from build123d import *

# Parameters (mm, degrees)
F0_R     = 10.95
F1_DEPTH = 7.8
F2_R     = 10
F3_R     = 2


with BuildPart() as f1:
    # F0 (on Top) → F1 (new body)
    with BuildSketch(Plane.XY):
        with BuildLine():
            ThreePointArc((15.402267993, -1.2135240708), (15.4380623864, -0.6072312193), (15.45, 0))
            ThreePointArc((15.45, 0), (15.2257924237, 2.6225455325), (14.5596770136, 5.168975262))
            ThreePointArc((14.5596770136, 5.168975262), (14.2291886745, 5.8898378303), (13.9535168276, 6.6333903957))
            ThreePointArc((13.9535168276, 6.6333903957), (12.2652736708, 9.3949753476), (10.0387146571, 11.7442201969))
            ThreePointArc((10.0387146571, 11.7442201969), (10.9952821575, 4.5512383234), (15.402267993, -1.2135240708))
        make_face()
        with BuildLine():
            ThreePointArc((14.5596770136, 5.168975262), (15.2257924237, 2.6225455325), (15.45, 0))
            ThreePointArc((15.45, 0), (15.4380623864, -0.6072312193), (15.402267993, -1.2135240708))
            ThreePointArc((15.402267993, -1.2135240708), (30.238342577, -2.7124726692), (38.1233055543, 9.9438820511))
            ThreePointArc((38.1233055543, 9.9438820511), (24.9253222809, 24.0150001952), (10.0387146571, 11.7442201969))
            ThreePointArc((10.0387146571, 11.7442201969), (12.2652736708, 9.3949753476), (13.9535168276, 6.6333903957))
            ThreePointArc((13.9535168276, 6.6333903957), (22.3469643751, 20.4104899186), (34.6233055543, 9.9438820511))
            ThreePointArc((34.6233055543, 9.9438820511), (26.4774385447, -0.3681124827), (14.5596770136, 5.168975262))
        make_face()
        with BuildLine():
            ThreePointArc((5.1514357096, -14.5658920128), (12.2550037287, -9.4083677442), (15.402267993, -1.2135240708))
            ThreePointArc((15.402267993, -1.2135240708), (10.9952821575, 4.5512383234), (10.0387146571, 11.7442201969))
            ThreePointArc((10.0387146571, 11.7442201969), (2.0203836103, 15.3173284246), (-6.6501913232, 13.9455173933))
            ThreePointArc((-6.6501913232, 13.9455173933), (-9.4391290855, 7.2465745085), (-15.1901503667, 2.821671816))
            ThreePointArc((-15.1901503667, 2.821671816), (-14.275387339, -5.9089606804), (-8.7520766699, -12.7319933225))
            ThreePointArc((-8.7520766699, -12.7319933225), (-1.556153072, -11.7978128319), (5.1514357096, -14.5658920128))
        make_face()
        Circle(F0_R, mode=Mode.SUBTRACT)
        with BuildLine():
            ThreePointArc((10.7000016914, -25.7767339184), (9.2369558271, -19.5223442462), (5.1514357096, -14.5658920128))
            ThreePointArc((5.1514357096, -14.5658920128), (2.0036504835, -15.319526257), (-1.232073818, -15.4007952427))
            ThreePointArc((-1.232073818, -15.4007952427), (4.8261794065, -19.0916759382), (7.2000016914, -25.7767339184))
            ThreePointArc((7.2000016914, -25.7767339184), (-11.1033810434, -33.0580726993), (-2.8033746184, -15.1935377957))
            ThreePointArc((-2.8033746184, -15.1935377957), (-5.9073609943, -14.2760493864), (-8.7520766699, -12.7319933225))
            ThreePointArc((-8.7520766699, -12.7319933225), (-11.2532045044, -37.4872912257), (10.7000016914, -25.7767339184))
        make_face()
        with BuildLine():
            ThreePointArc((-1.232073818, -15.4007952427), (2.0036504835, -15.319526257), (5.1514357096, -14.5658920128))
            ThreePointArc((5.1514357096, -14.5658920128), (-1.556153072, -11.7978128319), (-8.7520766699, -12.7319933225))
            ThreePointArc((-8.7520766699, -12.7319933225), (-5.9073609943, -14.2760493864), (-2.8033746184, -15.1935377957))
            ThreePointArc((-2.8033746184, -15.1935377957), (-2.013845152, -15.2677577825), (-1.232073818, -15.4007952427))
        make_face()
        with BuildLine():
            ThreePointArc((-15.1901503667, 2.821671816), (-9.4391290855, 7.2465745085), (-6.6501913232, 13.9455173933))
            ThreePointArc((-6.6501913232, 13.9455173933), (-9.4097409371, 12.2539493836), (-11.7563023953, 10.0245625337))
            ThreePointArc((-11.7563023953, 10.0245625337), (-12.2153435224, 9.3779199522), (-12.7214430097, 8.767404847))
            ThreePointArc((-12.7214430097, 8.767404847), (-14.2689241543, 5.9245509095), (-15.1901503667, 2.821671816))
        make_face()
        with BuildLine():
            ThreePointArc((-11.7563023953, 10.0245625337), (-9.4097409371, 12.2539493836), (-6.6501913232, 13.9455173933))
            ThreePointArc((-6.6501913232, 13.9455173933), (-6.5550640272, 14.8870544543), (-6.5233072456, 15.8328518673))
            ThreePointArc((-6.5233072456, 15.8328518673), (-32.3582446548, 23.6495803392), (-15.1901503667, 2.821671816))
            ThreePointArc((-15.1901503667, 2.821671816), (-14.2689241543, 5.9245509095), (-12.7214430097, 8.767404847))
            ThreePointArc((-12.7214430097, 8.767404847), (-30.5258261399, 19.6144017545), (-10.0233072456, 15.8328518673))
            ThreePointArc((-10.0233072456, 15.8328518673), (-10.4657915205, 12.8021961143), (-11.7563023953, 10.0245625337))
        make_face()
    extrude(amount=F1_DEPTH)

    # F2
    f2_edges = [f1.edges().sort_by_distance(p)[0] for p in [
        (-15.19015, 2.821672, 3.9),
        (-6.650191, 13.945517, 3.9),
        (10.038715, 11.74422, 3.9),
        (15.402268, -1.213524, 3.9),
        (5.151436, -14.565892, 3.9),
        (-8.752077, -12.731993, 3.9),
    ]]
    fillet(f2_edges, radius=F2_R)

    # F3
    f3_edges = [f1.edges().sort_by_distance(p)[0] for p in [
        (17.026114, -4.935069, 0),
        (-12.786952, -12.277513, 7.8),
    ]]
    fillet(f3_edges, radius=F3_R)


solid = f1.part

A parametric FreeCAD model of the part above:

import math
import FreeCAD as App
import Part
import Sketcher

V = App.Vector
Q = App.Units.Quantity


def edges_at(feature, points):
    """Names of the edges that pass closest to the given points."""
    edges = feature.Shape.Edges
    near = lambda p: min(range(len(edges)), key=lambda i: edges[i].distToShape(Part.Vertex(*p))[0])
    return sorted({f"Edge{near(p) + 1}" for p in points})

doc = App.newDocument("Part")
body = doc.addObject("PartDesign::Body", "Body")

# Sketch on XY plane
sketch1 = doc.addObject("Sketcher::SketchObject", "Sketch")
body.addObject(sketch1)
sketch1.AttachmentSupport = (doc.XY_Plane, [""])
sketch1.MapMode = "FlatFace"
sketch1.addGeometry([
    Part.ArcOfCircle(Part.Circle(V(24, 9.9, 0), V(0, 0, 1), 14.1), math.radians(-128), math.radians(0)),  # 0
    Part.ArcOfCircle(Part.Circle(V(24, 9.9, 0), V(0, 0, 1), 14.1), math.radians(0), math.radians(173)),  # 1
    Part.ArcOfCircle(Part.Circle(V(0, 0, 0), V(0, 0, 1), 15.4), math.radians(49), math.radians(115)),  # 2
    Part.ArcOfCircle(Part.Circle(V(-20.6, 15.8, 0), V(0, 0, 1), 14.1), math.radians(-7.69), math.radians(0)),  # 3
    Part.ArcOfCircle(Part.Circle(V(-20.6, 15.8, 0), V(0, 0, 1), 14.1), math.radians(0), math.radians(293)),  # 4
    Part.ArcOfCircle(Part.Circle(V(0, 0, 0), V(0, 0, 1), 15.4), math.radians(169), math.radians(235)),  # 5
    Part.ArcOfCircle(Part.Circle(V(-3.4, -25.8, 0), V(0, 0, 1), 14.1), math.radians(112), math.radians(360)),  # 6
    Part.ArcOfCircle(Part.Circle(V(-3.4, -25.8, 0), V(0, 0, 1), 14.1), math.radians(0), math.radians(53)),  # 7
    Part.ArcOfCircle(Part.Circle(V(0, 0, 0), V(0, 0, 1), 15.4), math.radians(-71), math.radians(-5)),  # 8
    Part.ArcOfCircle(Part.Circle(V(-20.6, 15.8, 0), V(0, 0, 1), 10.6), math.radians(-41.8), math.radians(-33.23)),  # 9
    Part.ArcOfCircle(Part.Circle(V(-20.6, 15.8, 0), V(0, 0, 1), 10.6), math.radians(0), math.radians(318)),  # 10
    Part.ArcOfCircle(Part.Circle(V(-20.6, 15.8, 0), V(0, 0, 1), 10.6), math.radians(-33), math.radians(0)),  # 11
    Part.Circle(V(0, 0, 0), V(0, 0, 1), 10.9),  # 12
    Part.ArcOfCircle(Part.Circle(V(24, 9.9, 0), V(0, 0, 1), 10.6), math.radians(-161.8), math.radians(-153.23)),  # 13
    Part.ArcOfCircle(Part.Circle(V(24, 9.9, 0), V(0, 0, 1), 10.6), math.radians(0), math.radians(198)),  # 14
    Part.ArcOfCircle(Part.Circle(V(24, 9.9, 0), V(0, 0, 1), 10.6), math.radians(-153), math.radians(0)),  # 15
    Part.ArcOfCircle(Part.Circle(V(-3.4, -25.8, 0), V(0, 0, 1), 10.6), math.radians(78.2), math.radians(86.77)),  # 16
    Part.ArcOfCircle(Part.Circle(V(-3.4, -25.8, 0), V(0, 0, 1), 10.6), math.radians(0), math.radians(78)),  # 17
    Part.ArcOfCircle(Part.Circle(V(-3.4, -25.8, 0), V(0, 0, 1), 10.6), math.radians(87), math.radians(360)),  # 18
], False)
sketch1.addConstraint([
    Sketcher.Constraint("Tangent", 0, 2, 1, 1),
    Sketcher.Constraint("Coincident", 1, 2, 2, 1),
    Sketcher.Constraint("Coincident", 2, 2, 3, 1),
    Sketcher.Constraint("Tangent", 3, 2, 4, 1),
    Sketcher.Constraint("Coincident", 4, 2, 5, 1),
    Sketcher.Constraint("Coincident", 5, 2, 6, 1),
    Sketcher.Constraint("Tangent", 6, 2, 7, 1),
    Sketcher.Constraint("Coincident", 7, 2, 8, 1),
    Sketcher.Constraint("Coincident", 8, 2, 0, 1),
    Sketcher.Constraint("Tangent", 9, 1, 10, 2),
    Sketcher.Constraint("Tangent", 10, 1, 11, 2),
    Sketcher.Constraint("Tangent", 11, 1, 9, 2),
    Sketcher.Constraint("Tangent", 13, 1, 14, 2),
    Sketcher.Constraint("Tangent", 14, 1, 15, 2),
    Sketcher.Constraint("Tangent", 15, 1, 13, 2),
    Sketcher.Constraint("Tangent", 16, 1, 17, 2),
    Sketcher.Constraint("Tangent", 17, 1, 18, 2),
    Sketcher.Constraint("Tangent", 18, 1, 16, 2),
    Sketcher.Constraint("Coincident", 2, 3, -1, 1),
    Sketcher.Constraint("Coincident", 5, 3, -1, 1),
    Sketcher.Constraint("Coincident", 8, 3, -1, 1),
    Sketcher.Constraint("Coincident", 12, 3, -1, 1),
    Sketcher.Constraint("Coincident", 9, 3, 3, 3),
    Sketcher.Constraint("Coincident", 13, 3, 0, 3),
    Sketcher.Constraint("Coincident", 16, 3, 6, 3),
    Sketcher.Constraint("Equal", 0, 1),
    Sketcher.Constraint("Equal", 1, 3),
    Sketcher.Constraint("Equal", 3, 4),
    Sketcher.Constraint("Equal", 2, 5),
    Sketcher.Constraint("Equal", 4, 6),
    Sketcher.Constraint("Equal", 6, 7),
    Sketcher.Constraint("Equal", 5, 8),
    Sketcher.Constraint("Equal", 11, 13),
    Sketcher.Constraint("Equal", 15, 16),
    Sketcher.Constraint("Horizontal", 15, 3, 0, 2),
    Sketcher.Constraint("Horizontal", 11, 3, 3, 2),
    Sketcher.Constraint("Horizontal", 18, 3, 6, 2),
    Sketcher.Constraint("Horizontal", 3, 2, 10, 1),
    Sketcher.Constraint("Horizontal", 0, 2, 14, 1),
    Sketcher.Constraint("Horizontal", 6, 2, 17, 1),
    Sketcher.Constraint("Diameter", 12, Q("21.9 mm")),
    Sketcher.Constraint("Radius", 0, Q("14.1 mm")),
    Sketcher.Constraint("Radius", 9, Q("10.6 mm")),
    Sketcher.Constraint("Radius", 2, Q("15.45 mm")),
    Sketcher.Constraint("DistanceX", 6, 3, -1, 1, Q("3.399998 mm")),
    Sketcher.Constraint("DistanceY", 7, 2, 5, 2, Q("1.833899 mm")),
    Sketcher.Constraint("DistanceY", 8, 2, 15, 1, Q("6.382499 mm")),
    Sketcher.Constraint("DistanceY", 16, 1, 5, 2, Q("2.668802 mm")),
    Sketcher.Constraint("DistanceX", 18, 1, 16, 1, Q("1.571301 mm")),
    Sketcher.Constraint("DistanceY", -1, 1, 3, 3, Q("15.832852 mm")),
    Sketcher.Constraint("DistanceY", -1, 1, 1, 2, Q("11.74422 mm")),
    Sketcher.Constraint("DistanceX", 2, 2, -1, 1, Q("6.650191 mm")),
    Sketcher.Constraint("DistanceY", -1, 1, 13, 1, Q("6.63339 mm")),
    Sketcher.Constraint("DistanceY", 0, 3, 3, 3, Q("5.88897 mm")),
    Sketcher.Constraint("DistanceX", 9, 1, 2, 2, Q("6.071252 mm")),
    Sketcher.Constraint("DistanceX", 9, 1, 11, 1, Q("0.965141 mm")),
])
pad1 = doc.addObject("PartDesign::Pad", "Pad")
body.addObject(pad1)
pad1.Profile = sketch1
pad1.Length = 7.8
doc.recompute()

fillet = doc.addObject("PartDesign::Fillet", "Fillet")
body.addObject(fillet)
fillet.Base = (pad1, edges_at(pad1, [
    (-15.19, 2.822, 3.9),
    (-6.65, 13.946, 3.9),
    (10.039, 11.744, 3.9),
    (15.402, -1.214, 3.9),
    (5.151, -14.566, 3.9),
    (-8.752, -12.732, 3.9),
]))
fillet.Radius = 10
doc.recompute()

fillet2 = doc.addObject("PartDesign::Fillet", "Fillet001")
body.addObject(fillet2)
fillet2.Base = (fillet, edges_at(fillet, [(17.026, -4.935, 0), (-12.787, -12.278, 7.8)]))
fillet2.Radius = 2

doc.recompute()
